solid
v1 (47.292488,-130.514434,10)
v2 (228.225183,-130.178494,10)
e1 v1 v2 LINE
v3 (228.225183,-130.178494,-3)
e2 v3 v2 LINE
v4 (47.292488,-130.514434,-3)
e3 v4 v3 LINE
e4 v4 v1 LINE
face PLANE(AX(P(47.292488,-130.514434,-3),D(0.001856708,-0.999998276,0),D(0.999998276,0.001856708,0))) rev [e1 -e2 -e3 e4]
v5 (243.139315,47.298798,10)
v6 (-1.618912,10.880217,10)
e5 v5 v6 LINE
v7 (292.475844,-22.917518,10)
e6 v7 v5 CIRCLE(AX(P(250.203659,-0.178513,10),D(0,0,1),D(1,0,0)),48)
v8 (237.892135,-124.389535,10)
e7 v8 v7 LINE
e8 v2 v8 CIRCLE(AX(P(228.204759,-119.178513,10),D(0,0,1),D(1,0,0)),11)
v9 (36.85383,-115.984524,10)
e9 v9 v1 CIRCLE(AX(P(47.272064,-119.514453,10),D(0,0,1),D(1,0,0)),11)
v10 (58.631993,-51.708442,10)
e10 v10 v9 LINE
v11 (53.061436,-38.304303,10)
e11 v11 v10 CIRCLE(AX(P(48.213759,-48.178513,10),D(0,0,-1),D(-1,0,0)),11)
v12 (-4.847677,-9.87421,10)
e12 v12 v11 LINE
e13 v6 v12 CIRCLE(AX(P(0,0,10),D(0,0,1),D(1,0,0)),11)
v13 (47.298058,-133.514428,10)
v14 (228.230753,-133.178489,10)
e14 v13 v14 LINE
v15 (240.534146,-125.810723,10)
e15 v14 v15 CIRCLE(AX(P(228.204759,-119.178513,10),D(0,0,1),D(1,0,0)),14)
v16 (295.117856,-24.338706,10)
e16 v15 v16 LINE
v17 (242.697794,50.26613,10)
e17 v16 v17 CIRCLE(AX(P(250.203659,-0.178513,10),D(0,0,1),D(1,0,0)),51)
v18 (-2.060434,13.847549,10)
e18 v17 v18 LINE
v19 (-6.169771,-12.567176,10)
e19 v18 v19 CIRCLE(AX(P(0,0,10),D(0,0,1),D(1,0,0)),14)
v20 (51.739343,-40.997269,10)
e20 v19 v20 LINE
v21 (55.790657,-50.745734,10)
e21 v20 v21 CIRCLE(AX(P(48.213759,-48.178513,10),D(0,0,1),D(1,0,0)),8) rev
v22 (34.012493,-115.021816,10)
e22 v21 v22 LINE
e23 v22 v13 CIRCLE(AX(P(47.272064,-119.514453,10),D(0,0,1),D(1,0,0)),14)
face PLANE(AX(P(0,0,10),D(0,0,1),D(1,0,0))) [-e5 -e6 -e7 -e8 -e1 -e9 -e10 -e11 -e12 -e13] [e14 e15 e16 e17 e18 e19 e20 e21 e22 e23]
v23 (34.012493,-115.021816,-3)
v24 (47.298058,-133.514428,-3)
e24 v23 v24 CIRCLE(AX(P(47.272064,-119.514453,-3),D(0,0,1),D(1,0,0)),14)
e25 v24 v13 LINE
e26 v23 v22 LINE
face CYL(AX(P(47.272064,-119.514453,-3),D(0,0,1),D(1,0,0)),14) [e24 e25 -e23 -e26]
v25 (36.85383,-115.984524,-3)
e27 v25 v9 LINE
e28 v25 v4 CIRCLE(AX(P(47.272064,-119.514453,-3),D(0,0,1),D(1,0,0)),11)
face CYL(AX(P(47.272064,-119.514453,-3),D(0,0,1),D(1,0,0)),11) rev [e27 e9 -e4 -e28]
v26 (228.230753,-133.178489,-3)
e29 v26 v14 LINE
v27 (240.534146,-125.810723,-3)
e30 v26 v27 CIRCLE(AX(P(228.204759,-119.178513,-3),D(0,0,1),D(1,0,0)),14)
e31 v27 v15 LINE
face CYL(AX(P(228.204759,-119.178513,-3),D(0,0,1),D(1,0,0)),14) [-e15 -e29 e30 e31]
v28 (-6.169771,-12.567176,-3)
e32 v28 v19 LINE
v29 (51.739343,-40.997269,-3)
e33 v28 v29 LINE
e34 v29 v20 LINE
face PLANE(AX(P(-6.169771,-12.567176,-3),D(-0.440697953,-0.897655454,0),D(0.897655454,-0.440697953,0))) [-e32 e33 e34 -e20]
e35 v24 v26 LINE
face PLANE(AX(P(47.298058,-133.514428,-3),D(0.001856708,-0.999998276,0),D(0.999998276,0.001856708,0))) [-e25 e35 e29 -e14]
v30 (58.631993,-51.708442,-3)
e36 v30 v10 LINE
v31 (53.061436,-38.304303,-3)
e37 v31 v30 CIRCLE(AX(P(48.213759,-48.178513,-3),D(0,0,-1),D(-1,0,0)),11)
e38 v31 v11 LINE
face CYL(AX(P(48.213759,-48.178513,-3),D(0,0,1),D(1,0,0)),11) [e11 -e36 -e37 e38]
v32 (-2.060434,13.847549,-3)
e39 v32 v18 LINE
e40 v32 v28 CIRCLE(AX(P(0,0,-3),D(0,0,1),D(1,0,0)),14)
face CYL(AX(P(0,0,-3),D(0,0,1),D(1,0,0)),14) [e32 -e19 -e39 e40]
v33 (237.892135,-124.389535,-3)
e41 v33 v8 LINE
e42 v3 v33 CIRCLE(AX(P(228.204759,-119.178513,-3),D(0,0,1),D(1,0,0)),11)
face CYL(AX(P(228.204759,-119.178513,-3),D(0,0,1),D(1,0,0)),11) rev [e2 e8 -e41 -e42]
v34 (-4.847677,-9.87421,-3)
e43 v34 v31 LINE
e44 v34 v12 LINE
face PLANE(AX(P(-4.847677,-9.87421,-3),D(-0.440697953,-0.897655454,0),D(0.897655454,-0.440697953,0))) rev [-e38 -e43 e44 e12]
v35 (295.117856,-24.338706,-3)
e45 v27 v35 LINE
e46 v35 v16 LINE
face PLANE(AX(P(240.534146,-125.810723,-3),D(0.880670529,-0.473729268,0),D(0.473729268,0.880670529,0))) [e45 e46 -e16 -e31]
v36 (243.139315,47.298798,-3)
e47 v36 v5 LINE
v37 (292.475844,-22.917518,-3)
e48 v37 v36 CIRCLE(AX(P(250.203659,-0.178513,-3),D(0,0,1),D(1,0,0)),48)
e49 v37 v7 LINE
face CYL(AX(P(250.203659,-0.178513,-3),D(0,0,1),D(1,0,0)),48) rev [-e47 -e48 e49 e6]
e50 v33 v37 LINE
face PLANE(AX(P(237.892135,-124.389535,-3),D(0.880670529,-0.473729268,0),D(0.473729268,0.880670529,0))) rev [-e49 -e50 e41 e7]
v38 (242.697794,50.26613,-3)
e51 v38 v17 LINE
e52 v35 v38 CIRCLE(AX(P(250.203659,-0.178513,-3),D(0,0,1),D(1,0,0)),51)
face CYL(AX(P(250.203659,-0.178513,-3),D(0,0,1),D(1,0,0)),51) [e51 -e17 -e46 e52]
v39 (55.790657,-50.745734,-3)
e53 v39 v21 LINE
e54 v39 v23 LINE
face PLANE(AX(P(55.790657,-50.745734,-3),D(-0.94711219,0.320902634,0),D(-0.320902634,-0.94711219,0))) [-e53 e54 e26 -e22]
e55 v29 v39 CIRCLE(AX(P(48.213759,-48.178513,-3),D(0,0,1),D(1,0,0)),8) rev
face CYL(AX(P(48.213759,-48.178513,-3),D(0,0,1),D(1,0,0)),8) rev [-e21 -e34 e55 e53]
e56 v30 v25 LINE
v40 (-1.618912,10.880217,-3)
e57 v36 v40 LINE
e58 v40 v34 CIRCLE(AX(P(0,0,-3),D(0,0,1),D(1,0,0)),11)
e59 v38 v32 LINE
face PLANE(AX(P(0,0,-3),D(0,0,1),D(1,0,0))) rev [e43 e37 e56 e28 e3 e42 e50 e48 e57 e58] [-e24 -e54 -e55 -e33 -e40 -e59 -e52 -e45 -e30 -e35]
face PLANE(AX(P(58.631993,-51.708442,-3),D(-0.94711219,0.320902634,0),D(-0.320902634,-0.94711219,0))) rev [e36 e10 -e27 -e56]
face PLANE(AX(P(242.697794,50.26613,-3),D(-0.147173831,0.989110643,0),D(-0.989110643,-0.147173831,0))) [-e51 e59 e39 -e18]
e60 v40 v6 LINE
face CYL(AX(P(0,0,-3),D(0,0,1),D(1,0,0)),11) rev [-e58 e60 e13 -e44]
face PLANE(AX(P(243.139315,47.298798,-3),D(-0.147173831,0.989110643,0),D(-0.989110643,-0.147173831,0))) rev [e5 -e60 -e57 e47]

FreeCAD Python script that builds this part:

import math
import FreeCAD as App
import Part
import Sketcher
Q = App.Units.Quantity

doc = App.newDocument("Part")
body = doc.addObject("PartDesign::Body", "Body")

# Sketch on XY plane
sketch1 = doc.addObject("Sketcher::SketchObject", "Sketch")
body.addObject(sketch1)
sketch1.AttachmentSupport = (doc.XY_Plane, [""])
sketch1.MapMode = "FlatFace"
sketch1.addGeometry([
    Part.LineSegment(App.Vector(242.697794, 50.26613, 0), App.Vector(-2.060434, 13.847549, 0)),  # 0
    Part.ArcOfCircle(Part.Circle(App.Vector(0, 0, 0), App.Vector(0, 0, 1), 14), math.radians(98.463181), math.radians(243.851578)),  # 1
    Part.LineSegment(App.Vector(-6.169771, -12.567176, 0), App.Vector(51.739343, -40.997269, 0)),  # 2
    Part.ArcOfCircle(Part.Circle(App.Vector(48.213759, -48.178513, 0), App.Vector(0, 0, 1), 8), math.radians(-18.717521), math.radians(63.851578)),  # 3
    Part.LineSegment(App.Vector(55.790657, -50.745734, 0), App.Vector(34.012493, -115.021816, 0)),  # 4
    Part.ArcOfCircle(Part.Circle(App.Vector(47.272064, -119.514453, 0), App.Vector(0, 0, 1), 14), math.radians(161.282479), math.radians(270.106382)),  # 5
    Part.LineSegment(App.Vector(47.298058, -133.514428, 0), App.Vector(228.230753, -133.178489, 0)),  # 6
    Part.ArcOfCircle(Part.Circle(App.Vector(228.204759, -119.178513, 0), App.Vector(0, 0, 1), 14), math.radians(-89.893618), math.radians(-28.276645)),  # 7
    Part.LineSegment(App.Vector(240.534146, -125.810723, 0), App.Vector(295.117856, -24.338706, 0)),  # 8
    Part.ArcOfCircle(Part.Circle(App.Vector(250.203659, -0.178513, 0), App.Vector(0, 0, 1), 51), math.radians(-28.276645), math.radians(98.463181)),  # 9
    Part.LineSegment(App.Vector(-1.618912, 10.880217, 0), App.Vector(243.139315, 47.298798, 0)),  # 10
    Part.ArcOfCircle(Part.Circle(App.Vector(250.203659, -0.178513, 0), App.Vector(0, 0, 1), 48), math.radians(-28.276645), math.radians(98.463181)),  # 11
    Part.LineSegment(App.Vector(292.475844, -22.917518, 0), App.Vector(237.892135, -124.389535, 0)),  # 12
    Part.ArcOfCircle(Part.Circle(App.Vector(228.204759, -119.178513, 0), App.Vector(0, 0, 1), 11), math.radians(-89.893618), math.radians(-28.276645)),  # 13
    Part.LineSegment(App.Vector(228.225183, -130.178494, 0), App.Vector(47.292488, -130.514434, 0)),  # 14
    Part.ArcOfCircle(Part.Circle(App.Vector(47.272064, -119.514453, 0), App.Vector(0, 0, 1), 11), math.radians(161.282479), math.radians(270.106382)),  # 15
    Part.LineSegment(App.Vector(36.85383, -115.984524, 0), App.Vector(58.631993, -51.708442, 0)),  # 16
    Part.ArcOfCircle(Part.Circle(App.Vector(48.213759, -48.178513, 0), App.Vector(0, 0, 1), 11), math.radians(-18.717521), math.radians(63.851578)),  # 17
    Part.LineSegment(App.Vector(53.061436, -38.304303, 0), App.Vector(-4.847677, -9.87421, 0)),  # 18
    Part.ArcOfCircle(Part.Circle(App.Vector(0, 0, 0), App.Vector(0, 0, 1), 11), math.radians(98.463181), math.radians(243.851578)),  # 19
], False)
sketch1.addConstraint([
    Sketcher.Constraint("Tangent", 0, 2, 1, 1),
    Sketcher.Constraint("Tangent", 1, 2, 2, 1),
    Sketcher.Constraint("Tangent", 2, 2, 3, 2),
    Sketcher.Constraint("Tangent", 3, 1, 4, 1),
    Sketcher.Constraint("Tangent", 4, 2, 5, 1),
    Sketcher.Constraint("Tangent", 5, 2, 6, 1),
    Sketcher.Constraint("Tangent", 6, 2, 7, 1),
    Sketcher.Constraint("Tangent", 7, 2, 8, 1),
    Sketcher.Constraint("Tangent", 8, 2, 9, 1),
    Sketcher.Constraint("Tangent", 9, 2, 0, 1),
    Sketcher.Constraint("Tangent", 10, 2, 11, 2),
    Sketcher.Constraint("Tangent", 11, 1, 12, 1),
    Sketcher.Constraint("Tangent", 12, 2, 13, 2),
    Sketcher.Constraint("Tangent", 13, 1, 14, 1),
    Sketcher.Constraint("Tangent", 14, 2, 15, 2),
    Sketcher.Constraint("Tangent", 15, 1, 16, 1),
    Sketcher.Constraint("Tangent", 16, 2, 17, 1),
    Sketcher.Constraint("Tangent", 17, 2, 18, 1),
    Sketcher.Constraint("Tangent", 18, 2, 19, 2),
    Sketcher.Constraint("Tangent", 19, 1, 10, 1),
    Sketcher.Constraint("Coincident", 1, 3, -1, 1),
    Sketcher.Constraint("Coincident", 19, 3, -1, 1),
    Sketcher.Constraint("Coincident", 11, 3, 9, 3),
    Sketcher.Constraint("Coincident", 13, 3, 7, 3),
    Sketcher.Constraint("Coincident", 15, 3, 5, 3),
    Sketcher.Constraint("Coincident", 17, 3, 3, 3),
    Sketcher.Constraint("Equal", 1, 5),
    Sketcher.Constraint("Equal", 5, 7),
    Sketcher.Constraint("Equal", 13, 15),
    Sketcher.Constraint("Equal", 15, 17),
    Sketcher.Constraint("Equal", 17, 19),
    Sketcher.Constraint("Parallel", 0, 10),
    Sketcher.Constraint("Parallel", 4, 16),
    Sketcher.Constraint("Radius", 1, Q("14 mm")),
    Sketcher.Constraint("Radius", 3, Q("8 mm")),
    Sketcher.Constraint("Radius", 9, Q("51 mm")),
    Sketcher.Constraint("DistanceY", 7, 3, 3, 3, Q("71 mm")),
    Sketcher.Constraint("DistanceY", 7, 3, 9, 3, Q("119 mm")),
    Sketcher.Constraint("DistanceX", 3, 3, 7, 3, Q("179.991 mm")),
    Sketcher.Constraint("DistanceY", 5, 3, 0, 2, Q("133.362002 mm")),
    Sketcher.Constraint("DistanceX", 7, 3, 9, 3, Q("21.9989 mm")),
    Sketcher.Constraint("DistanceX", 5, 2, 3, 1, Q("8.492599 mm")),
    Sketcher.Constraint("DistanceY", 14, 2, 3, 1, Q("79.7687 mm")),
    Sketcher.Constraint("Distance", 0, Q("247.45283 mm")),
])
pad1 = doc.addObject("PartDesign::Pad", "Pad")
body.addObject(pad1)
pad1.Profile = sketch1
pad1.Type = "TwoLengths"
pad1.Length = 10
pad1.Length2 = 3

doc.recompute()
